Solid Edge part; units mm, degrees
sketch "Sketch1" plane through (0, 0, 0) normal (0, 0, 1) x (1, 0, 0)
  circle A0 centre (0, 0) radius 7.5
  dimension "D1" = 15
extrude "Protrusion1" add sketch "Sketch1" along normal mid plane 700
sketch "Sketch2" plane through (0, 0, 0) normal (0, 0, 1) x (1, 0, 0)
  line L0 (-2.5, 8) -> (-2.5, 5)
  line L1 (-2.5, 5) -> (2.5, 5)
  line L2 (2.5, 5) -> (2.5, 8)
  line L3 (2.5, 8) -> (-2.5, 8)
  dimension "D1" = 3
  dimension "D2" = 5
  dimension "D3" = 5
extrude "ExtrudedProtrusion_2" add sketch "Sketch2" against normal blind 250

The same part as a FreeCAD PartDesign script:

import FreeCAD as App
import Part
import Sketcher
from FreeCAD import Vector
Q = App.Units.Quantity


def add_polygon(sketch, points):
    """Adds a closed chain of lines whose ends are joined by coincident constraints."""
    first, n = sketch.GeometryCount, len(points)
    for a, b in zip(points, points[1:] + points[:1]):
        sketch.addGeometry(Part.LineSegment(App.Vector(*a, 0), App.Vector(*b, 0)), False)
    for i in range(n):
        sketch.addConstraint(Sketcher.Constraint("Coincident", first + i, 2, first + (i + 1) % n, 1))

doc = App.newDocument("Part")
params = doc.addObject("Spreadsheet::Sheet", "Params")
for row, (alias, value) in enumerate([
    ("sketch1_diameter", "15 mm"),
    ("pad1_length", "700 mm"),
    ("sketch2_height", "3 mm"),
    ("pad2_length", "250 mm"),
], start=1):
    params.set(f"A{row}", alias)
    params.set(f"B{row}", "=" + value)
    params.setAlias(f"B{row}", alias)

body = doc.addObject("PartDesign::Body", "Body")

sketch1 = doc.addObject("Sketcher::SketchObject", "Sketch")
body.addObject(sketch1)
sketch1.AttachmentSupport = (doc.XY_Plane, [""])
sketch1.MapMode = "FlatFace"
sketch1.addGeometry(Part.Circle(Vector(0, 0, 0), Vector(0, 0, 1), 8), False)
sketch1.addConstraint(Sketcher.Constraint("Coincident", 0, 3, -1, 1))
sketch1.addConstraint(Sketcher.Constraint("Diameter", 0, Q("15 mm")))
sketch1.setExpression("Constraints[1]", "Params.sketch1_diameter")
pad1 = doc.addObject("PartDesign::Pad", "Pad")
body.addObject(pad1)
pad1.Profile = sketch1
pad1.setExpression("Length", "Params.pad1_length")
pad1.Midplane = True

sketch2 = doc.addObject("Sketcher::SketchObject", "Sketch001")
body.addObject(sketch2)
sketch2.AttachmentSupport = (doc.XY_Plane, [""])
sketch2.MapMode = "FlatFace"
add_polygon(sketch2, [(2.5, 8), (-2.5, 8), (-2.5, 5), (2.5, 5)])
sketch2.addConstraint(Sketcher.Constraint("Horizontal", 0))
sketch2.addConstraint(Sketcher.Constraint("Vertical", 1))
sketch2.addConstraint(Sketcher.Constraint("Horizontal", 2))
sketch2.addConstraint(Sketcher.Constraint("Vertical", 3))
sketch2.addConstraint(Sketcher.Constraint("DistanceX", 0, 2, -1, 1, Q("2.5 mm")))
sketch2.addConstraint(Sketcher.Constraint("DistanceX", -1, 1, 2, 2, Q("2.5 mm")))
sketch2.addConstraint(Sketcher.Constraint("DistanceY", 1, 2, 1, 1, Q("3 mm")))
sketch2.addConstraint(Sketcher.Constraint("DistanceY", -1, 1, 0, 2, Q("8 mm")))
sketch2.setExpression("Constraints[10]", "Params.sketch2_height")
pad2 = doc.addObject("PartDesign::Pad", "Pad001")
body.addObject(pad2)
pad2.Profile = sketch2
pad2.setExpression("Length", "Params.pad2_length")
pad2.Reversed = True

doc.recompute()
